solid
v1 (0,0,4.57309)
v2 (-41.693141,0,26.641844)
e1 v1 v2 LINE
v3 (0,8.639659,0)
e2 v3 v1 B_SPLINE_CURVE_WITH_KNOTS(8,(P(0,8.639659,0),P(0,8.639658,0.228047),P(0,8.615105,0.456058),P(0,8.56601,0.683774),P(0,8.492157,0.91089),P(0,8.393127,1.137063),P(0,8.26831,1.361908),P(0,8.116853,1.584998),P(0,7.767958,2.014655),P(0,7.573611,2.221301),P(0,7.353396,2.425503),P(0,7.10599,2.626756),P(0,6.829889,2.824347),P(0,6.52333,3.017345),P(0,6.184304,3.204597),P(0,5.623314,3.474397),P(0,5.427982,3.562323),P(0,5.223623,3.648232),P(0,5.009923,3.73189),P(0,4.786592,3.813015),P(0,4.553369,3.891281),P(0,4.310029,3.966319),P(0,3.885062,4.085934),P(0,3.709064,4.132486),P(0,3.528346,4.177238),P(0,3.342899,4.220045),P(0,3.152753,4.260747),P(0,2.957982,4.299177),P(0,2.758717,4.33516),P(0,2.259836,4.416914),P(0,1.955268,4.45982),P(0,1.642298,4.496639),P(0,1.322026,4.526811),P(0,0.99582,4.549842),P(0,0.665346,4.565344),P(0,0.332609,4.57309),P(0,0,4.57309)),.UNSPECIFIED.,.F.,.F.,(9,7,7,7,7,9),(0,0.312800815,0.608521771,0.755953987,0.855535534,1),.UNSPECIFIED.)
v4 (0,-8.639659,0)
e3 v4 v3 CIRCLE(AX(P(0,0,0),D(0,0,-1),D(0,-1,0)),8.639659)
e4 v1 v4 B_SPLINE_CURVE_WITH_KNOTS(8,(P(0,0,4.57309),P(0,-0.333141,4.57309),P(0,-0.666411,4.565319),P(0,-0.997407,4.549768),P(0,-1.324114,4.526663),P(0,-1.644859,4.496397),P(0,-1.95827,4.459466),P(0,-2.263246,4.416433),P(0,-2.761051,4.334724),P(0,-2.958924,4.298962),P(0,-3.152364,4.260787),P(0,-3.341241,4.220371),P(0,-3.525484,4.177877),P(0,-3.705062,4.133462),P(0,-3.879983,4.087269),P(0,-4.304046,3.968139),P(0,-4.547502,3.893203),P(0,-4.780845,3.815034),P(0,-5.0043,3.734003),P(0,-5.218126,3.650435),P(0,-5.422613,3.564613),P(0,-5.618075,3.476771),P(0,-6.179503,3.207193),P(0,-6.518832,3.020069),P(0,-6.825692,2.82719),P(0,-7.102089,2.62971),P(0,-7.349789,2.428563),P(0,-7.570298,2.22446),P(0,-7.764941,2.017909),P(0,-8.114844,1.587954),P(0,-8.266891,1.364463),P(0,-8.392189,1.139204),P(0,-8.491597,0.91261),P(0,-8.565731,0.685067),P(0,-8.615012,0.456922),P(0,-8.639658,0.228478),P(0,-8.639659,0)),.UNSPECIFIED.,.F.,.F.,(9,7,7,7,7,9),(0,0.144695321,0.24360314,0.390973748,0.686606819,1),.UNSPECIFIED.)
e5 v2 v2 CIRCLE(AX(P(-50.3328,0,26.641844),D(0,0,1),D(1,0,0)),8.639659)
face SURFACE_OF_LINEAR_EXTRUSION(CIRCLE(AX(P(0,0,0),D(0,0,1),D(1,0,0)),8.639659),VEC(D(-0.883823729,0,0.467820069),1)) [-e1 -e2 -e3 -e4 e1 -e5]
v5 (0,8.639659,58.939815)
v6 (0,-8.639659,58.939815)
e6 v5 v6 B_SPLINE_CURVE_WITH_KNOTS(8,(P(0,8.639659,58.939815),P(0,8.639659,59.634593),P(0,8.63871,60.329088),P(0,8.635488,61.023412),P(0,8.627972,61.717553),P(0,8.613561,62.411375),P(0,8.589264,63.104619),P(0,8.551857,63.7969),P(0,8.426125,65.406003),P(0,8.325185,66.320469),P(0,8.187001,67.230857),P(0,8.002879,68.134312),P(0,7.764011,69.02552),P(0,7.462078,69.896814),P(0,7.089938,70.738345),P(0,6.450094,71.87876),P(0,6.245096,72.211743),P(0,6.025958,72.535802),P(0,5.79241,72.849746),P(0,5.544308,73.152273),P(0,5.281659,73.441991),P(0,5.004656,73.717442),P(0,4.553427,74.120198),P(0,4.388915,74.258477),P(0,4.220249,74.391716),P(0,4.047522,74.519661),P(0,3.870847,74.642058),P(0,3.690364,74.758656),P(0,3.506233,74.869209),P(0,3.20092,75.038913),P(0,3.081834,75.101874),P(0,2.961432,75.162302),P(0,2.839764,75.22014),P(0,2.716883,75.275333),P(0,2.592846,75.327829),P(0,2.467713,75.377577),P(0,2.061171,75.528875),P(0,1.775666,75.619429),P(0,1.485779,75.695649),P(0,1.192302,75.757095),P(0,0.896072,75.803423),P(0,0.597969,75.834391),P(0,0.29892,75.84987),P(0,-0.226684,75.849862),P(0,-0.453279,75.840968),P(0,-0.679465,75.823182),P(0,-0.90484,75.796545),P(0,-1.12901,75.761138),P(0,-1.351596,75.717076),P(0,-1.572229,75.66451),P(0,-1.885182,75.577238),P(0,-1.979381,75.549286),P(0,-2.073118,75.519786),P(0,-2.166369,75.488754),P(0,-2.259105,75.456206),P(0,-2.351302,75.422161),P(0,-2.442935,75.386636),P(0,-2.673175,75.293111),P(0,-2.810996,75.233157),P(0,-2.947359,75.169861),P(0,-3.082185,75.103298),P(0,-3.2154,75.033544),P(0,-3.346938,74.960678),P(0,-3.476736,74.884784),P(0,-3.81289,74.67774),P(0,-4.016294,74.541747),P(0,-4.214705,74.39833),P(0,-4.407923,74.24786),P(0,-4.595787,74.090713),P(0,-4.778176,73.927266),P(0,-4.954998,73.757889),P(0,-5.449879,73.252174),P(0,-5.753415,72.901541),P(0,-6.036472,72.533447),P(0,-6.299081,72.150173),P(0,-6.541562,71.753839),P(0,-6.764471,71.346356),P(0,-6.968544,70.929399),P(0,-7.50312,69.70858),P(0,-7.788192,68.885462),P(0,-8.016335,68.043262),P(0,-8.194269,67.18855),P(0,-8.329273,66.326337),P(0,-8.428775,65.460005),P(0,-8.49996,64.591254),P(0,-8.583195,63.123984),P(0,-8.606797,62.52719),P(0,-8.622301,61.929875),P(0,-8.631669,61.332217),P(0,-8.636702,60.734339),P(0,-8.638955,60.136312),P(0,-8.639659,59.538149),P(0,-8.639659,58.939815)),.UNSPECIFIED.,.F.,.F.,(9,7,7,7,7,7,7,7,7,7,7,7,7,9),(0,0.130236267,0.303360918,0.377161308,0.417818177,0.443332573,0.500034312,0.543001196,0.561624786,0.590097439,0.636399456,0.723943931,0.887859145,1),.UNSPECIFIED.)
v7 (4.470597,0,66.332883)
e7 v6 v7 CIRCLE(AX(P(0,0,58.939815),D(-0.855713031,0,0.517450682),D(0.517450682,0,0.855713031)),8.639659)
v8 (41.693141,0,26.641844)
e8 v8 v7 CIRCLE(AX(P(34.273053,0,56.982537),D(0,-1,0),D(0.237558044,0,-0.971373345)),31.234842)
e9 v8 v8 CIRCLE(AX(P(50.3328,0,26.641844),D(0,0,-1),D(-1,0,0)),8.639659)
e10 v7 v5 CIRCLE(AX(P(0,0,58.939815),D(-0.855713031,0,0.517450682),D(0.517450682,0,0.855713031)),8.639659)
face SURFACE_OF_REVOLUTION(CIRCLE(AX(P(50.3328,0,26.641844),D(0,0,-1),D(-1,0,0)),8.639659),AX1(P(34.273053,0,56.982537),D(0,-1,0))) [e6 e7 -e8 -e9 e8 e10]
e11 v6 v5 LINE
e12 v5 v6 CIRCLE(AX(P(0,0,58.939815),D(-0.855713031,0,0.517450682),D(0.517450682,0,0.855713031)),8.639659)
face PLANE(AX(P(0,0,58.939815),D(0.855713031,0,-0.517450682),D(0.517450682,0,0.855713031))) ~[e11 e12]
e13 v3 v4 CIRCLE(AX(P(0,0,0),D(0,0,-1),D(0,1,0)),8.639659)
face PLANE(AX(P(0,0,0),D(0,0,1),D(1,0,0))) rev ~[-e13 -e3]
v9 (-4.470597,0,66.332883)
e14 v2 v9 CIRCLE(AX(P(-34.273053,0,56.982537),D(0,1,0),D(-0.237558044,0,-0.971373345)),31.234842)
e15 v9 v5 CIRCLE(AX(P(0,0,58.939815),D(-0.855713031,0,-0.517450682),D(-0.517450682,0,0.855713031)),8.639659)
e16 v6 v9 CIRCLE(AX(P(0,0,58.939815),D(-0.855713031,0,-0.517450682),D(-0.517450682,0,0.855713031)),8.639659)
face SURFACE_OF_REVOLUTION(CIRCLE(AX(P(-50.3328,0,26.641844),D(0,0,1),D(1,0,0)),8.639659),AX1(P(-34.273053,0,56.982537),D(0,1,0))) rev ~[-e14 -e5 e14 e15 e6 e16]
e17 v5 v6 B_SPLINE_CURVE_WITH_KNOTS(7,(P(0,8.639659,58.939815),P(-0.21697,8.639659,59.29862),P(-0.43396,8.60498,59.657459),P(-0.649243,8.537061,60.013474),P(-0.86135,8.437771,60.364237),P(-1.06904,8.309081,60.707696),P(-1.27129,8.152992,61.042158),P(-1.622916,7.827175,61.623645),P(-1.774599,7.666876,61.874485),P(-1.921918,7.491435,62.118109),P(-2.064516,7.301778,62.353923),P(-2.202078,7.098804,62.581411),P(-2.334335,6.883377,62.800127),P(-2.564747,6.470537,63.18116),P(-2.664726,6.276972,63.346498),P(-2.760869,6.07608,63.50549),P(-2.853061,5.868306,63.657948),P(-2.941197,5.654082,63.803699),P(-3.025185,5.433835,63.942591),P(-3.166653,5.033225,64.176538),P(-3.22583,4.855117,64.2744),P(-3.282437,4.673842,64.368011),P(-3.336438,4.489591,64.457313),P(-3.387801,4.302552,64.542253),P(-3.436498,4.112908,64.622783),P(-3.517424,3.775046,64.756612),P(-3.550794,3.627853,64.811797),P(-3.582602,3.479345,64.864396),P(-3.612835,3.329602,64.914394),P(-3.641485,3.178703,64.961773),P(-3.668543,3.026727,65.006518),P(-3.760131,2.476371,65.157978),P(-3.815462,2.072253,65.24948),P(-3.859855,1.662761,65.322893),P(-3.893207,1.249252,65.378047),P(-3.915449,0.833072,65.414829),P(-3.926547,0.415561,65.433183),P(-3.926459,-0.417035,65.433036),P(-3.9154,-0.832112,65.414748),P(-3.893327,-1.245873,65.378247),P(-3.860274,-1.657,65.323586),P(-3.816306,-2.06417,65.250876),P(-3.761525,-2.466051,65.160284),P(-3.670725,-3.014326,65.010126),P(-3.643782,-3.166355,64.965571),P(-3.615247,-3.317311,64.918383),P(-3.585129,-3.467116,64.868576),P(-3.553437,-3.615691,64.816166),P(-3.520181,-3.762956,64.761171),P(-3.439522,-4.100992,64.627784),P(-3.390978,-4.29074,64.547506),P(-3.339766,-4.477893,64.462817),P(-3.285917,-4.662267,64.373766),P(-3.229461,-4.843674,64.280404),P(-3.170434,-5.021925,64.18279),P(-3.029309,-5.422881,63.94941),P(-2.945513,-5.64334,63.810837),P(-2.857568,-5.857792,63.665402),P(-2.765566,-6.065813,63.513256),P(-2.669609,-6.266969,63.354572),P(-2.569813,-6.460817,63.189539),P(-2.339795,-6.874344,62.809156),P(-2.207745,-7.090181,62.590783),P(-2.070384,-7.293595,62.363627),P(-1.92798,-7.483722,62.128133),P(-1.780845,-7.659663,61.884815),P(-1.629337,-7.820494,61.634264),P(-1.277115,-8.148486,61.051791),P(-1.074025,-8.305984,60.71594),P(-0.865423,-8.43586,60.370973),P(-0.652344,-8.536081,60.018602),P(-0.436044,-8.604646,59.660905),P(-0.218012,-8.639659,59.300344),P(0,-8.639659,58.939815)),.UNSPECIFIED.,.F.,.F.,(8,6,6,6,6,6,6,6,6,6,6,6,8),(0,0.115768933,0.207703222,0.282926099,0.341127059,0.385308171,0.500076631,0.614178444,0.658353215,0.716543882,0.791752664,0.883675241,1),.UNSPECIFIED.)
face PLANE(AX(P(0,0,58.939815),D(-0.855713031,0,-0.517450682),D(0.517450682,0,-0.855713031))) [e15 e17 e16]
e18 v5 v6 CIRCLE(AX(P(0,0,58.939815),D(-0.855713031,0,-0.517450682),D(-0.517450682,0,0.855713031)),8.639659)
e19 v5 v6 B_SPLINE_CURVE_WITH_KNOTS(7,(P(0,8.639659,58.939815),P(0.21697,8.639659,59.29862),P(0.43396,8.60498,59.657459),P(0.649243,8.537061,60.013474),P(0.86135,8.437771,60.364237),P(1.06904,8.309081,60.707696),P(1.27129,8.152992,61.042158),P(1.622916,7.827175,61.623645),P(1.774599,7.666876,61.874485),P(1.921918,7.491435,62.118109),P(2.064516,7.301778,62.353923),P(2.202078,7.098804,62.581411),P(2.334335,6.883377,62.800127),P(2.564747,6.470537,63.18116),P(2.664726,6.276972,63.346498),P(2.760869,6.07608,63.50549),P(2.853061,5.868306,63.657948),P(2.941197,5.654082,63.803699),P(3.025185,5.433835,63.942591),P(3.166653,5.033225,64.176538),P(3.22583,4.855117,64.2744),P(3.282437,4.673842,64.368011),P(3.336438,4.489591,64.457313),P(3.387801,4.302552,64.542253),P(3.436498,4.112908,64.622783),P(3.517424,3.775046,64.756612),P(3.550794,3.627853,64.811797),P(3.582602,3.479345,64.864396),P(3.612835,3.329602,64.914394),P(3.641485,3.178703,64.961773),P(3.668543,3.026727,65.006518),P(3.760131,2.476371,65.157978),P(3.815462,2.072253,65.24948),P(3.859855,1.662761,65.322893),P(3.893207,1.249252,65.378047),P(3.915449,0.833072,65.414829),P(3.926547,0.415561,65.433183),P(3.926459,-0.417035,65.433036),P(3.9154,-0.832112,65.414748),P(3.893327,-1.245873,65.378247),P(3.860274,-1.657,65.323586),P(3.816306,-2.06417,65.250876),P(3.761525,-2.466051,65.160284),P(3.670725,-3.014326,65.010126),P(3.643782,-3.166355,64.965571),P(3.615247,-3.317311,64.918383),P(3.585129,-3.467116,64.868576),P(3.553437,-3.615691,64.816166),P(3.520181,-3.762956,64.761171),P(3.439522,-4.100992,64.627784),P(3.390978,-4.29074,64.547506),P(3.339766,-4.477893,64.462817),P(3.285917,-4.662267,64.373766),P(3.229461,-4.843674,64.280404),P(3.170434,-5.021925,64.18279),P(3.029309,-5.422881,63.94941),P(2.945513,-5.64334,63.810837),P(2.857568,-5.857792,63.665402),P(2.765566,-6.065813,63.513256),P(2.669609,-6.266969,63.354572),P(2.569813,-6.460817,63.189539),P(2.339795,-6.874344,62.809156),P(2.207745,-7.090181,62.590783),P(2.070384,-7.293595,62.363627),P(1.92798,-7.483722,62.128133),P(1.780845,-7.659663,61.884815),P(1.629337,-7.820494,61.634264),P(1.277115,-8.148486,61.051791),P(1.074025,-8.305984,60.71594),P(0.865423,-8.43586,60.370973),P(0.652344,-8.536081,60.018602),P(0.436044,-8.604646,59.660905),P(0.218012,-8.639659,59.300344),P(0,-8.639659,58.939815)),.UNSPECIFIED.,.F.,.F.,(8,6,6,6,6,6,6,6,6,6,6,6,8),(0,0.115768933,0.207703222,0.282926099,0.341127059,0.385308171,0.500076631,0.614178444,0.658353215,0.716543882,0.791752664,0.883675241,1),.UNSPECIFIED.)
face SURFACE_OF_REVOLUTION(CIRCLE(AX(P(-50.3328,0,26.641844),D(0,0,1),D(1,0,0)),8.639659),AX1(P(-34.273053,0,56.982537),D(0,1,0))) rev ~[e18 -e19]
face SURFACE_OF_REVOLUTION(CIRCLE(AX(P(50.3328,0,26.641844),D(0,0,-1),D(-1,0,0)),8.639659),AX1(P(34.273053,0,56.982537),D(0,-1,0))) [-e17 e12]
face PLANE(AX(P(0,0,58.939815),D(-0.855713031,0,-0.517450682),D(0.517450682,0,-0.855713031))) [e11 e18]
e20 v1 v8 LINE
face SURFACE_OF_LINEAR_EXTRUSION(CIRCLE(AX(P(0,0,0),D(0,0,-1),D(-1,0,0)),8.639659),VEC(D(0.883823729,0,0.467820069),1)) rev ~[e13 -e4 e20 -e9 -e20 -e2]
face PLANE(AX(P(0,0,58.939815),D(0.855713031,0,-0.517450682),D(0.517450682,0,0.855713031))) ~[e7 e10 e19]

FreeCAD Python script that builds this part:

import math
import FreeCAD as App
import Part
import Sketcher
Q = App.Units.Quantity

doc = App.newDocument("Part")
body = doc.addObject("PartDesign::Body", "Body")

sketch1 = body.newObject("Sketcher::SketchObject", "Sketch")
sketch1.AttachmentSupport = (doc.getObject("XY_Plane"), [""])
sketch1.MapMode = "FlatFace"
sketch1.addGeometry(Part.Circle(App.Vector(0, 0, 0), App.Vector(0, 0, 1), 9), False)
sketch1.addConstraint([
    Sketcher.Constraint("Coincident", 0, 3, -1, 1),
    Sketcher.Constraint("Diameter", 0, Q("17.279317 mm")),
])

sketch2 = body.newObject("Sketcher::SketchObject", "Sketch001")
sketch2.AttachmentSupport = (doc.getObject("XZ_Plane"), [""])
sketch2.MapMode = "FlatFace"
sketch2.addGeometry([
    Part.LineSegment(App.Vector(0, 0, 0), App.Vector(-50, 27, 0)),
    Part.ArcOfCircle(Part.Circle(App.Vector(-34, 57, 0), App.Vector(0, 0, 1), 34), math.radians(3), math.radians(242)),
], False)
sketch2.addConstraint([
    Sketcher.Constraint("Tangent", 0, 2, 1, 2),
    Sketcher.Constraint("Coincident", 0, 1, -1, 1),
    Sketcher.Constraint("PointOnObject", 1, 1, -2),
    Sketcher.Constraint("Radius", 1, Q("34.328896 mm")),
    Sketcher.Constraint("DistanceX", 0, 2, -1, 1, Q("50.3328 mm")),
    Sketcher.Constraint("Distance", 0, Q("56.948912 mm")),
])
doc.recompute()

additivepipe = body.newObject("PartDesign::AdditivePipe", "AdditivePipe")
additivepipe.Profile = sketch1
additivepipe.Spine = (sketch2, ["Edge1", "Edge2"])
body2 = doc.addObject("PartDesign::Body", "Body001")
doc.recompute()

body2.BaseFeature = body
doc.recompute()

mirroring = doc.addObject("Part::Mirroring", "Mirroring")
mirroring.Source = body
mirroring.Base = App.Vector(0, 0, 0)
mirroring.Normal = App.Vector(1, 0, 0)
body3 = doc.addObject("PartDesign::Body", "Body002")
body3.BaseFeature = mirroring
boolean = body2.newObject("PartDesign::Boolean", "Boolean")
boolean.Type = "Fuse"
boolean.addObjects([body3])
doc.recompute()
mirroring.Visibility = False

doc.recompute()
